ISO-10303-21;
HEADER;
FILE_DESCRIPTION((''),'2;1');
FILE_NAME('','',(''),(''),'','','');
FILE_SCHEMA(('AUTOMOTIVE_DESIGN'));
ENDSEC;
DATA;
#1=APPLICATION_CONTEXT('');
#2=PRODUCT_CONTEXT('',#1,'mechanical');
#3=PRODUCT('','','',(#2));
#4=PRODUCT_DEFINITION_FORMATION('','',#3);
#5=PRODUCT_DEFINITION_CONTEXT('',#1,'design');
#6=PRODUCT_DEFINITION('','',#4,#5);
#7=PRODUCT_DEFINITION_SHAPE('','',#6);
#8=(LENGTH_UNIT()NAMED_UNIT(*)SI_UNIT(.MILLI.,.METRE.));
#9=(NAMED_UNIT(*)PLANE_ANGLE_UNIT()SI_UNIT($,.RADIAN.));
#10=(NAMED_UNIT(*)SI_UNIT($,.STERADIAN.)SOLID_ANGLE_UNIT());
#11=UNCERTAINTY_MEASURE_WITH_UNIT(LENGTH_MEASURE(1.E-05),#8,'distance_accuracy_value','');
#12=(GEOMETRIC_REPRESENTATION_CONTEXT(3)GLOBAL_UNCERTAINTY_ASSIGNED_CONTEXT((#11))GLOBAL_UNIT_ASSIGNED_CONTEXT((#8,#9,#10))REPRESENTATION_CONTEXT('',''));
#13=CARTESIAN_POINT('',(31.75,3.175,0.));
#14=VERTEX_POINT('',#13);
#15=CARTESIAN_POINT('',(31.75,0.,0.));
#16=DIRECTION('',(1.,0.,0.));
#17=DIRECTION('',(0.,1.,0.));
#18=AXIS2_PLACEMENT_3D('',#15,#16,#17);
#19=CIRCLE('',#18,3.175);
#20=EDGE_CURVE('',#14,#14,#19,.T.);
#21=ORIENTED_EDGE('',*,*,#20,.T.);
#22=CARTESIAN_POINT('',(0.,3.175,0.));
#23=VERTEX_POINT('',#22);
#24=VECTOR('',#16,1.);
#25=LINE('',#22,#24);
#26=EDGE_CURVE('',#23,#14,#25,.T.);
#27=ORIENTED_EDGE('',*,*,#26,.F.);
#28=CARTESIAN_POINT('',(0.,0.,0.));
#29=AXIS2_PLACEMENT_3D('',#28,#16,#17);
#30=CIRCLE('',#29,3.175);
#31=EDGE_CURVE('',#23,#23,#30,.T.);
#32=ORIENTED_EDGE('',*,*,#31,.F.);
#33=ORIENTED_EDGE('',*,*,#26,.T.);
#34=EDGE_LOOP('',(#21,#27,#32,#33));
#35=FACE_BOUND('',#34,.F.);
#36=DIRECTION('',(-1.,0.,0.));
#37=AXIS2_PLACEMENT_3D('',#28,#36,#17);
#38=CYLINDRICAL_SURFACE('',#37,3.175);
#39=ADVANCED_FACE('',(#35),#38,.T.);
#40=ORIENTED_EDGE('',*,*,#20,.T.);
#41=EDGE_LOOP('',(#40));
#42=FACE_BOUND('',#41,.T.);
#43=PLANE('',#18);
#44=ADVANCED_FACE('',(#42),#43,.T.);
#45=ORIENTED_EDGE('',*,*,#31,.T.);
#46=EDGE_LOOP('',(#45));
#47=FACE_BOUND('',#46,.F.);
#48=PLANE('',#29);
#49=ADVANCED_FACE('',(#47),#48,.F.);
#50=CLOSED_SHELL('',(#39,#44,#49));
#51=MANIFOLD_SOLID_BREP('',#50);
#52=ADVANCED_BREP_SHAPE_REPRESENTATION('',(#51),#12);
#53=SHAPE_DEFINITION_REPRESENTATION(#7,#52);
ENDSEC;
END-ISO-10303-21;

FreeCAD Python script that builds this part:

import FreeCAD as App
import Part
import Sketcher
Q = App.Units.Quantity

doc = App.newDocument("Part")
params = doc.addObject("Spreadsheet::Sheet", "Params")
for row, (alias, value) in enumerate([
    ("sketch1_diameter", "0.25 in"),
    ("pad1_length", "1.25 in"),
], start=1):
    params.set(f"A{row}", alias)
    params.set(f"B{row}", "=" + value)
    params.setAlias(f"B{row}", alias)

body = doc.addObject("PartDesign::Body", "Body")

# Sketch on YZ plane
sketch1 = body.newObject("Sketcher::SketchObject", "Sketch")
sketch1.AttachmentSupport = (doc.getObject("YZ_Plane"), [""])
sketch1.MapMode = "FlatFace"
sketch1.addGeometry(Part.Circle(App.Vector(0, 0, 0), App.Vector(0, 0, 1), 3.2), False)
sketch1.addConstraint([
    Sketcher.Constraint("Coincident", 0, 3, -1, 1),
    Sketcher.Constraint("Diameter", 0, Q("0.25 in")),
])
sketch1.setExpression("Constraints[1]", "Params.sketch1_diameter")
pad1 = body.newObject("PartDesign::Pad", "Pad")
pad1.Profile = sketch1
pad1.setExpression("Length", "Params.pad1_length")

doc.recompute()
